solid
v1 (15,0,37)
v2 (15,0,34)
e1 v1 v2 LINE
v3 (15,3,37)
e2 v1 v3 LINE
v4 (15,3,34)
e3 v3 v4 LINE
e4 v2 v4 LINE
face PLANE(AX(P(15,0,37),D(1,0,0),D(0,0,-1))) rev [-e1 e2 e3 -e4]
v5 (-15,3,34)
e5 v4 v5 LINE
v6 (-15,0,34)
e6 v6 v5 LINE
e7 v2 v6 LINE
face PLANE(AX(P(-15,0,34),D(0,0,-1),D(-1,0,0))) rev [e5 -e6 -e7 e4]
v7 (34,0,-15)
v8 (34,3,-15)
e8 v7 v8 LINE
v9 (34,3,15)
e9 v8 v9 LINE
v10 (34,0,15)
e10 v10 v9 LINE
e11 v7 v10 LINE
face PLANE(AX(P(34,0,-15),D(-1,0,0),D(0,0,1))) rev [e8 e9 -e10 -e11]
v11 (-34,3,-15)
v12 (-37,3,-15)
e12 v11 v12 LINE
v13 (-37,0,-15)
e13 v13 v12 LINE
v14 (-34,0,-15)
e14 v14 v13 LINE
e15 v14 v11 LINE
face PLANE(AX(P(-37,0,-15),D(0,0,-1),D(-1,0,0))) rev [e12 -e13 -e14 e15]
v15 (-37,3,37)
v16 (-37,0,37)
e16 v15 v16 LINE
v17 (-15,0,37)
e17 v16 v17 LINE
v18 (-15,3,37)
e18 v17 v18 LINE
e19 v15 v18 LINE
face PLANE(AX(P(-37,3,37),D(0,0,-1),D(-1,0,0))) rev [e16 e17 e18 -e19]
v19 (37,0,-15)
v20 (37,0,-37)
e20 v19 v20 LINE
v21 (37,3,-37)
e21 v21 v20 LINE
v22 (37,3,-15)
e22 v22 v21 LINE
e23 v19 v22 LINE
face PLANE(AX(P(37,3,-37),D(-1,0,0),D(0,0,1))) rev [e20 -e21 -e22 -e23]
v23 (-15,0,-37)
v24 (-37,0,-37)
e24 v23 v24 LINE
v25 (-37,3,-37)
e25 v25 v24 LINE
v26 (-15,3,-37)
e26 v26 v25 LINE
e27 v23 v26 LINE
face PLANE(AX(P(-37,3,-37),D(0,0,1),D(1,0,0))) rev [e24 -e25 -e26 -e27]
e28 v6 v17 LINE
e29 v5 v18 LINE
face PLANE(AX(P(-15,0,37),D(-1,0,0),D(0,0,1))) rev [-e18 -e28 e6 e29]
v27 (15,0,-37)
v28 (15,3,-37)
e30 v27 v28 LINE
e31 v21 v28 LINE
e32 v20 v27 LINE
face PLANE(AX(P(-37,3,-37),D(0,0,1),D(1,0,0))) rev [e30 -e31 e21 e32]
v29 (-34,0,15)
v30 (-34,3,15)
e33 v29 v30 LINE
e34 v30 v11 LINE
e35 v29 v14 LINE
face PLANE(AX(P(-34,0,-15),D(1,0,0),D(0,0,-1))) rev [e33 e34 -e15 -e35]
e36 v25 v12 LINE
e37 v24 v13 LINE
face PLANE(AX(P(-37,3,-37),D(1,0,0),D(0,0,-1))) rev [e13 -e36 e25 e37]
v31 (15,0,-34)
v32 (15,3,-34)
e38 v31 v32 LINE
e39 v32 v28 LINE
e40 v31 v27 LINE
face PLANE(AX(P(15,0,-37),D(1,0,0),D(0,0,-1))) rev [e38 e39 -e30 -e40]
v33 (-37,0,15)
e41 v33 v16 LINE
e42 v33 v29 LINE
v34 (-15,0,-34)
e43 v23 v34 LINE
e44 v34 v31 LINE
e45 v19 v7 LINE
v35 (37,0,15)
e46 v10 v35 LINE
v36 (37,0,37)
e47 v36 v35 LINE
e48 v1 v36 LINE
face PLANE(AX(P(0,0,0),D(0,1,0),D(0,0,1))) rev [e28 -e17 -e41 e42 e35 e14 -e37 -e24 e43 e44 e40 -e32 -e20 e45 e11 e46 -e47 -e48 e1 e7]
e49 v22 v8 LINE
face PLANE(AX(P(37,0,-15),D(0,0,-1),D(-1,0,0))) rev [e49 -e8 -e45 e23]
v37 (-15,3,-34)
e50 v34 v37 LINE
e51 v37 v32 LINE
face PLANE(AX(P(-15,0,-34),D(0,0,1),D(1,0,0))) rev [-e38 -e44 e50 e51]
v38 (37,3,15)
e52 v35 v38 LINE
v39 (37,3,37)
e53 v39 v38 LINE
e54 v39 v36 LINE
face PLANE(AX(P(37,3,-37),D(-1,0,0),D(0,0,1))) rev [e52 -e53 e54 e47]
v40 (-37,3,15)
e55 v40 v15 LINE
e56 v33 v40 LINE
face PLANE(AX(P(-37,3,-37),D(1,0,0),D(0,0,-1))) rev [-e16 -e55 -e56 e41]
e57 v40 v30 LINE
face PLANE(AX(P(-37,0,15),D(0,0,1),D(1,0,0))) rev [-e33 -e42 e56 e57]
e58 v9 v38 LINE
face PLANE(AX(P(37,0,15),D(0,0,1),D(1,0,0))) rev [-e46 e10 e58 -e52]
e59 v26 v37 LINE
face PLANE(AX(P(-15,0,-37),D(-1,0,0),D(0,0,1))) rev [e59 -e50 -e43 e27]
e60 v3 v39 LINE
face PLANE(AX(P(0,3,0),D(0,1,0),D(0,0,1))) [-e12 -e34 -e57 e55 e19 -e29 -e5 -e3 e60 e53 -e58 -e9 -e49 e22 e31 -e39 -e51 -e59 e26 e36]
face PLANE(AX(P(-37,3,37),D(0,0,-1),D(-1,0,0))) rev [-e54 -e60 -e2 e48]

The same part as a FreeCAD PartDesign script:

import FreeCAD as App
import Part
import Sketcher
from FreeCAD import Vector
Q = App.Units.Quantity


def add_polygon(sketch, points):
    """Adds a closed chain of lines whose ends are joined by coincident constraints."""
    first, n = sketch.GeometryCount, len(points)
    for a, b in zip(points, points[1:] + points[:1]):
        sketch.addGeometry(Part.LineSegment(App.Vector(*a, 0), App.Vector(*b, 0)), False)
    for i in range(n):
        sketch.addConstraint(Sketcher.Constraint("Coincident", first + i, 2, first + (i + 1) % n, 1))

doc = App.newDocument("Part")
body = doc.addObject("PartDesign::Body", "Body")

# Sketch on XZ plane
sketch1 = body.newObject("Sketcher::SketchObject", "Sketch")
sketch1.AttachmentSupport = (doc.getObject("XZ_Plane"), [""])
sketch1.MapMode = "FlatFace"
add_polygon(sketch1, [(-37, -37), (-37, 37), (37, 37), (37, -37)])  # lines 0-3
sketch1.addConstraint([
    Sketcher.Constraint("Vertical", 0),
    Sketcher.Constraint("Horizontal", 1),
    Sketcher.Constraint("Vertical", 2),
    Sketcher.Constraint("Horizontal", 3),
    Sketcher.Constraint("Symmetric", 0, 2, 2, 2, -1, 1),
    Sketcher.Constraint("Equal", 3, 0),
    Sketcher.Constraint("DistanceX", 1, 1, 1, 2, Q("74 mm")),
])
pad1 = body.newObject("PartDesign::Pad", "Pad")
pad1.Profile = sketch1
pad1.Length = 3
pad1.Reversed = True

# Sketch on XZ plane
sketch2 = body.newObject("Sketcher::SketchObject", "Sketch001")
sketch2.AttachmentSupport = (doc.getObject("XZ_Plane"), [""])
sketch2.MapMode = "FlatFace"
sketch2.AttachmentOffset = App.Placement(Vector(0, 0, -3), App.Rotation())
add_polygon(sketch2, [(-15, -37), (-15, -34), (15, -34), (15, -37)])  # lines 0-3
add_polygon(sketch2, [(34, -15), (34, 15), (37, 15), (37, -15)])  # lines 4-7
add_polygon(sketch2, [(-15, 34), (-15, 37), (15, 37), (15, 34)])  # lines 8-11
add_polygon(sketch2, [(-37, -15), (-37, 15), (-34, 15), (-34, -15)])  # lines 12-15
sketch2.addConstraint([
    Sketcher.Constraint("Vertical", 0),
    Sketcher.Constraint("Horizontal", 1),
    Sketcher.Constraint("Vertical", 2),
    Sketcher.Constraint("Horizontal", 3),
    Sketcher.Constraint("Vertical", 4),
    Sketcher.Constraint("Horizontal", 5),
    Sketcher.Constraint("Vertical", 6),
    Sketcher.Constraint("Horizontal", 7),
    Sketcher.Constraint("Vertical", 8),
    Sketcher.Constraint("Horizontal", 9),
    Sketcher.Constraint("Vertical", 10),
    Sketcher.Constraint("Horizontal", 11),
    Sketcher.Constraint("Vertical", 12),
    Sketcher.Constraint("Horizontal", 13),
    Sketcher.Constraint("Vertical", 14),
    Sketcher.Constraint("Horizontal", 15),
    Sketcher.Constraint("Symmetric", 2, 2, 8, 2, -1, 1),
    Sketcher.Constraint("Symmetric", 0, 2, 10, 2, -1, 1),
    Sketcher.Constraint("Symmetric", 6, 2, 12, 2, -1, 1),
    Sketcher.Constraint("Symmetric", 4, 2, 14, 2, -1, 1),
    Sketcher.Constraint("Horizontal", 5, 2, 12, 2),
    Sketcher.Constraint("Vertical", 3, 2, 8, 2),
    Sketcher.Constraint("Equal", 15, 0),
    Sketcher.Constraint("Equal", 11, 4),
    Sketcher.Constraint("DistanceX", 1, 1, 1, 2, Q("30 mm")),
    Sketcher.Constraint("DistanceX", 5, 1, 5, 2, Q("3 mm")),
    Sketcher.Constraint("DistanceY", 0, 2, -1, 1, Q("34 mm")),
    Sketcher.Constraint("DistanceX", -1, 1, 4, 2, Q("34 mm")),
])
pocket1 = body.newObject("PartDesign::Pocket", "Pocket")
pocket1.Profile = sketch2
pocket1.Length = 3
pocket1.Reversed = True

doc.recompute()
